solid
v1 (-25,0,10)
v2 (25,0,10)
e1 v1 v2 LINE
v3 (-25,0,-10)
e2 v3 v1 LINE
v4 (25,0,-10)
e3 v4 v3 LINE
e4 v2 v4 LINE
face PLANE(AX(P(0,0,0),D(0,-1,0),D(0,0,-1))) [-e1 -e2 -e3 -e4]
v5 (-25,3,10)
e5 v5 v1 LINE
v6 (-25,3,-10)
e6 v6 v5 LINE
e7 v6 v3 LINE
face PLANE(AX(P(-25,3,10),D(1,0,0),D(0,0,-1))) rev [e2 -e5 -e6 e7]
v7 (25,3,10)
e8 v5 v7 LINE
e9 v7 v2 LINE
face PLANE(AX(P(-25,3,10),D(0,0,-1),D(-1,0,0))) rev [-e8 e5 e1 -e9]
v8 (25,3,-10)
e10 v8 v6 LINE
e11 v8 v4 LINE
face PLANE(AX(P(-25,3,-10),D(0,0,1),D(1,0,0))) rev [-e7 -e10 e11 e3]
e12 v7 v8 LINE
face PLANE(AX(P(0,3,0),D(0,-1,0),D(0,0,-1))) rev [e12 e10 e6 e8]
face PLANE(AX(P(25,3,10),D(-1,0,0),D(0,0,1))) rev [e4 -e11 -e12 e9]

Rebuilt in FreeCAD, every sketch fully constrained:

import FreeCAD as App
import Part
import Sketcher

V = App.Vector
Q = App.Units.Quantity


def add_polygon(sketch, points):
    """Adds a closed chain of lines whose ends are joined by coincident constraints."""
    first, n = sketch.GeometryCount, len(points)
    for a, b in zip(points, points[1:] + points[:1]):
        sketch.addGeometry(Part.LineSegment(App.Vector(*a, 0), App.Vector(*b, 0)), False)
    for i in range(n):
        sketch.addConstraint(Sketcher.Constraint("Coincident", first + i, 2, first + (i + 1) % n, 1))

doc = App.newDocument("Part")
body = doc.addObject("PartDesign::Body", "Body")

sketch1 = body.newObject("Sketcher::SketchObject", "Sketch")
sketch1.AttachmentSupport = (doc.getObject("XZ_Plane"), [""])
sketch1.MapMode = "FlatFace"
add_polygon(sketch1, [(-25, -10), (-25, 10), (25, 10), (25, -10)])
sketch1.addConstraint([
    Sketcher.Constraint("Vertical", 0),
    Sketcher.Constraint("Horizontal", 1),
    Sketcher.Constraint("Vertical", 2),
    Sketcher.Constraint("Horizontal", 3),
    Sketcher.Constraint("Symmetric", 0, 2, 2, 2, -1, 1),
    Sketcher.Constraint("DistanceX", 1, 1, 1, 2, Q("50 mm")),
    Sketcher.Constraint("DistanceY", 0, 1, 0, 2, Q("20 mm")),
])
pad1 = body.newObject("PartDesign::Pad", "Pad")
pad1.Profile = sketch1
pad1.Length = 3
pad1.Reversed = True

doc.recompute()
